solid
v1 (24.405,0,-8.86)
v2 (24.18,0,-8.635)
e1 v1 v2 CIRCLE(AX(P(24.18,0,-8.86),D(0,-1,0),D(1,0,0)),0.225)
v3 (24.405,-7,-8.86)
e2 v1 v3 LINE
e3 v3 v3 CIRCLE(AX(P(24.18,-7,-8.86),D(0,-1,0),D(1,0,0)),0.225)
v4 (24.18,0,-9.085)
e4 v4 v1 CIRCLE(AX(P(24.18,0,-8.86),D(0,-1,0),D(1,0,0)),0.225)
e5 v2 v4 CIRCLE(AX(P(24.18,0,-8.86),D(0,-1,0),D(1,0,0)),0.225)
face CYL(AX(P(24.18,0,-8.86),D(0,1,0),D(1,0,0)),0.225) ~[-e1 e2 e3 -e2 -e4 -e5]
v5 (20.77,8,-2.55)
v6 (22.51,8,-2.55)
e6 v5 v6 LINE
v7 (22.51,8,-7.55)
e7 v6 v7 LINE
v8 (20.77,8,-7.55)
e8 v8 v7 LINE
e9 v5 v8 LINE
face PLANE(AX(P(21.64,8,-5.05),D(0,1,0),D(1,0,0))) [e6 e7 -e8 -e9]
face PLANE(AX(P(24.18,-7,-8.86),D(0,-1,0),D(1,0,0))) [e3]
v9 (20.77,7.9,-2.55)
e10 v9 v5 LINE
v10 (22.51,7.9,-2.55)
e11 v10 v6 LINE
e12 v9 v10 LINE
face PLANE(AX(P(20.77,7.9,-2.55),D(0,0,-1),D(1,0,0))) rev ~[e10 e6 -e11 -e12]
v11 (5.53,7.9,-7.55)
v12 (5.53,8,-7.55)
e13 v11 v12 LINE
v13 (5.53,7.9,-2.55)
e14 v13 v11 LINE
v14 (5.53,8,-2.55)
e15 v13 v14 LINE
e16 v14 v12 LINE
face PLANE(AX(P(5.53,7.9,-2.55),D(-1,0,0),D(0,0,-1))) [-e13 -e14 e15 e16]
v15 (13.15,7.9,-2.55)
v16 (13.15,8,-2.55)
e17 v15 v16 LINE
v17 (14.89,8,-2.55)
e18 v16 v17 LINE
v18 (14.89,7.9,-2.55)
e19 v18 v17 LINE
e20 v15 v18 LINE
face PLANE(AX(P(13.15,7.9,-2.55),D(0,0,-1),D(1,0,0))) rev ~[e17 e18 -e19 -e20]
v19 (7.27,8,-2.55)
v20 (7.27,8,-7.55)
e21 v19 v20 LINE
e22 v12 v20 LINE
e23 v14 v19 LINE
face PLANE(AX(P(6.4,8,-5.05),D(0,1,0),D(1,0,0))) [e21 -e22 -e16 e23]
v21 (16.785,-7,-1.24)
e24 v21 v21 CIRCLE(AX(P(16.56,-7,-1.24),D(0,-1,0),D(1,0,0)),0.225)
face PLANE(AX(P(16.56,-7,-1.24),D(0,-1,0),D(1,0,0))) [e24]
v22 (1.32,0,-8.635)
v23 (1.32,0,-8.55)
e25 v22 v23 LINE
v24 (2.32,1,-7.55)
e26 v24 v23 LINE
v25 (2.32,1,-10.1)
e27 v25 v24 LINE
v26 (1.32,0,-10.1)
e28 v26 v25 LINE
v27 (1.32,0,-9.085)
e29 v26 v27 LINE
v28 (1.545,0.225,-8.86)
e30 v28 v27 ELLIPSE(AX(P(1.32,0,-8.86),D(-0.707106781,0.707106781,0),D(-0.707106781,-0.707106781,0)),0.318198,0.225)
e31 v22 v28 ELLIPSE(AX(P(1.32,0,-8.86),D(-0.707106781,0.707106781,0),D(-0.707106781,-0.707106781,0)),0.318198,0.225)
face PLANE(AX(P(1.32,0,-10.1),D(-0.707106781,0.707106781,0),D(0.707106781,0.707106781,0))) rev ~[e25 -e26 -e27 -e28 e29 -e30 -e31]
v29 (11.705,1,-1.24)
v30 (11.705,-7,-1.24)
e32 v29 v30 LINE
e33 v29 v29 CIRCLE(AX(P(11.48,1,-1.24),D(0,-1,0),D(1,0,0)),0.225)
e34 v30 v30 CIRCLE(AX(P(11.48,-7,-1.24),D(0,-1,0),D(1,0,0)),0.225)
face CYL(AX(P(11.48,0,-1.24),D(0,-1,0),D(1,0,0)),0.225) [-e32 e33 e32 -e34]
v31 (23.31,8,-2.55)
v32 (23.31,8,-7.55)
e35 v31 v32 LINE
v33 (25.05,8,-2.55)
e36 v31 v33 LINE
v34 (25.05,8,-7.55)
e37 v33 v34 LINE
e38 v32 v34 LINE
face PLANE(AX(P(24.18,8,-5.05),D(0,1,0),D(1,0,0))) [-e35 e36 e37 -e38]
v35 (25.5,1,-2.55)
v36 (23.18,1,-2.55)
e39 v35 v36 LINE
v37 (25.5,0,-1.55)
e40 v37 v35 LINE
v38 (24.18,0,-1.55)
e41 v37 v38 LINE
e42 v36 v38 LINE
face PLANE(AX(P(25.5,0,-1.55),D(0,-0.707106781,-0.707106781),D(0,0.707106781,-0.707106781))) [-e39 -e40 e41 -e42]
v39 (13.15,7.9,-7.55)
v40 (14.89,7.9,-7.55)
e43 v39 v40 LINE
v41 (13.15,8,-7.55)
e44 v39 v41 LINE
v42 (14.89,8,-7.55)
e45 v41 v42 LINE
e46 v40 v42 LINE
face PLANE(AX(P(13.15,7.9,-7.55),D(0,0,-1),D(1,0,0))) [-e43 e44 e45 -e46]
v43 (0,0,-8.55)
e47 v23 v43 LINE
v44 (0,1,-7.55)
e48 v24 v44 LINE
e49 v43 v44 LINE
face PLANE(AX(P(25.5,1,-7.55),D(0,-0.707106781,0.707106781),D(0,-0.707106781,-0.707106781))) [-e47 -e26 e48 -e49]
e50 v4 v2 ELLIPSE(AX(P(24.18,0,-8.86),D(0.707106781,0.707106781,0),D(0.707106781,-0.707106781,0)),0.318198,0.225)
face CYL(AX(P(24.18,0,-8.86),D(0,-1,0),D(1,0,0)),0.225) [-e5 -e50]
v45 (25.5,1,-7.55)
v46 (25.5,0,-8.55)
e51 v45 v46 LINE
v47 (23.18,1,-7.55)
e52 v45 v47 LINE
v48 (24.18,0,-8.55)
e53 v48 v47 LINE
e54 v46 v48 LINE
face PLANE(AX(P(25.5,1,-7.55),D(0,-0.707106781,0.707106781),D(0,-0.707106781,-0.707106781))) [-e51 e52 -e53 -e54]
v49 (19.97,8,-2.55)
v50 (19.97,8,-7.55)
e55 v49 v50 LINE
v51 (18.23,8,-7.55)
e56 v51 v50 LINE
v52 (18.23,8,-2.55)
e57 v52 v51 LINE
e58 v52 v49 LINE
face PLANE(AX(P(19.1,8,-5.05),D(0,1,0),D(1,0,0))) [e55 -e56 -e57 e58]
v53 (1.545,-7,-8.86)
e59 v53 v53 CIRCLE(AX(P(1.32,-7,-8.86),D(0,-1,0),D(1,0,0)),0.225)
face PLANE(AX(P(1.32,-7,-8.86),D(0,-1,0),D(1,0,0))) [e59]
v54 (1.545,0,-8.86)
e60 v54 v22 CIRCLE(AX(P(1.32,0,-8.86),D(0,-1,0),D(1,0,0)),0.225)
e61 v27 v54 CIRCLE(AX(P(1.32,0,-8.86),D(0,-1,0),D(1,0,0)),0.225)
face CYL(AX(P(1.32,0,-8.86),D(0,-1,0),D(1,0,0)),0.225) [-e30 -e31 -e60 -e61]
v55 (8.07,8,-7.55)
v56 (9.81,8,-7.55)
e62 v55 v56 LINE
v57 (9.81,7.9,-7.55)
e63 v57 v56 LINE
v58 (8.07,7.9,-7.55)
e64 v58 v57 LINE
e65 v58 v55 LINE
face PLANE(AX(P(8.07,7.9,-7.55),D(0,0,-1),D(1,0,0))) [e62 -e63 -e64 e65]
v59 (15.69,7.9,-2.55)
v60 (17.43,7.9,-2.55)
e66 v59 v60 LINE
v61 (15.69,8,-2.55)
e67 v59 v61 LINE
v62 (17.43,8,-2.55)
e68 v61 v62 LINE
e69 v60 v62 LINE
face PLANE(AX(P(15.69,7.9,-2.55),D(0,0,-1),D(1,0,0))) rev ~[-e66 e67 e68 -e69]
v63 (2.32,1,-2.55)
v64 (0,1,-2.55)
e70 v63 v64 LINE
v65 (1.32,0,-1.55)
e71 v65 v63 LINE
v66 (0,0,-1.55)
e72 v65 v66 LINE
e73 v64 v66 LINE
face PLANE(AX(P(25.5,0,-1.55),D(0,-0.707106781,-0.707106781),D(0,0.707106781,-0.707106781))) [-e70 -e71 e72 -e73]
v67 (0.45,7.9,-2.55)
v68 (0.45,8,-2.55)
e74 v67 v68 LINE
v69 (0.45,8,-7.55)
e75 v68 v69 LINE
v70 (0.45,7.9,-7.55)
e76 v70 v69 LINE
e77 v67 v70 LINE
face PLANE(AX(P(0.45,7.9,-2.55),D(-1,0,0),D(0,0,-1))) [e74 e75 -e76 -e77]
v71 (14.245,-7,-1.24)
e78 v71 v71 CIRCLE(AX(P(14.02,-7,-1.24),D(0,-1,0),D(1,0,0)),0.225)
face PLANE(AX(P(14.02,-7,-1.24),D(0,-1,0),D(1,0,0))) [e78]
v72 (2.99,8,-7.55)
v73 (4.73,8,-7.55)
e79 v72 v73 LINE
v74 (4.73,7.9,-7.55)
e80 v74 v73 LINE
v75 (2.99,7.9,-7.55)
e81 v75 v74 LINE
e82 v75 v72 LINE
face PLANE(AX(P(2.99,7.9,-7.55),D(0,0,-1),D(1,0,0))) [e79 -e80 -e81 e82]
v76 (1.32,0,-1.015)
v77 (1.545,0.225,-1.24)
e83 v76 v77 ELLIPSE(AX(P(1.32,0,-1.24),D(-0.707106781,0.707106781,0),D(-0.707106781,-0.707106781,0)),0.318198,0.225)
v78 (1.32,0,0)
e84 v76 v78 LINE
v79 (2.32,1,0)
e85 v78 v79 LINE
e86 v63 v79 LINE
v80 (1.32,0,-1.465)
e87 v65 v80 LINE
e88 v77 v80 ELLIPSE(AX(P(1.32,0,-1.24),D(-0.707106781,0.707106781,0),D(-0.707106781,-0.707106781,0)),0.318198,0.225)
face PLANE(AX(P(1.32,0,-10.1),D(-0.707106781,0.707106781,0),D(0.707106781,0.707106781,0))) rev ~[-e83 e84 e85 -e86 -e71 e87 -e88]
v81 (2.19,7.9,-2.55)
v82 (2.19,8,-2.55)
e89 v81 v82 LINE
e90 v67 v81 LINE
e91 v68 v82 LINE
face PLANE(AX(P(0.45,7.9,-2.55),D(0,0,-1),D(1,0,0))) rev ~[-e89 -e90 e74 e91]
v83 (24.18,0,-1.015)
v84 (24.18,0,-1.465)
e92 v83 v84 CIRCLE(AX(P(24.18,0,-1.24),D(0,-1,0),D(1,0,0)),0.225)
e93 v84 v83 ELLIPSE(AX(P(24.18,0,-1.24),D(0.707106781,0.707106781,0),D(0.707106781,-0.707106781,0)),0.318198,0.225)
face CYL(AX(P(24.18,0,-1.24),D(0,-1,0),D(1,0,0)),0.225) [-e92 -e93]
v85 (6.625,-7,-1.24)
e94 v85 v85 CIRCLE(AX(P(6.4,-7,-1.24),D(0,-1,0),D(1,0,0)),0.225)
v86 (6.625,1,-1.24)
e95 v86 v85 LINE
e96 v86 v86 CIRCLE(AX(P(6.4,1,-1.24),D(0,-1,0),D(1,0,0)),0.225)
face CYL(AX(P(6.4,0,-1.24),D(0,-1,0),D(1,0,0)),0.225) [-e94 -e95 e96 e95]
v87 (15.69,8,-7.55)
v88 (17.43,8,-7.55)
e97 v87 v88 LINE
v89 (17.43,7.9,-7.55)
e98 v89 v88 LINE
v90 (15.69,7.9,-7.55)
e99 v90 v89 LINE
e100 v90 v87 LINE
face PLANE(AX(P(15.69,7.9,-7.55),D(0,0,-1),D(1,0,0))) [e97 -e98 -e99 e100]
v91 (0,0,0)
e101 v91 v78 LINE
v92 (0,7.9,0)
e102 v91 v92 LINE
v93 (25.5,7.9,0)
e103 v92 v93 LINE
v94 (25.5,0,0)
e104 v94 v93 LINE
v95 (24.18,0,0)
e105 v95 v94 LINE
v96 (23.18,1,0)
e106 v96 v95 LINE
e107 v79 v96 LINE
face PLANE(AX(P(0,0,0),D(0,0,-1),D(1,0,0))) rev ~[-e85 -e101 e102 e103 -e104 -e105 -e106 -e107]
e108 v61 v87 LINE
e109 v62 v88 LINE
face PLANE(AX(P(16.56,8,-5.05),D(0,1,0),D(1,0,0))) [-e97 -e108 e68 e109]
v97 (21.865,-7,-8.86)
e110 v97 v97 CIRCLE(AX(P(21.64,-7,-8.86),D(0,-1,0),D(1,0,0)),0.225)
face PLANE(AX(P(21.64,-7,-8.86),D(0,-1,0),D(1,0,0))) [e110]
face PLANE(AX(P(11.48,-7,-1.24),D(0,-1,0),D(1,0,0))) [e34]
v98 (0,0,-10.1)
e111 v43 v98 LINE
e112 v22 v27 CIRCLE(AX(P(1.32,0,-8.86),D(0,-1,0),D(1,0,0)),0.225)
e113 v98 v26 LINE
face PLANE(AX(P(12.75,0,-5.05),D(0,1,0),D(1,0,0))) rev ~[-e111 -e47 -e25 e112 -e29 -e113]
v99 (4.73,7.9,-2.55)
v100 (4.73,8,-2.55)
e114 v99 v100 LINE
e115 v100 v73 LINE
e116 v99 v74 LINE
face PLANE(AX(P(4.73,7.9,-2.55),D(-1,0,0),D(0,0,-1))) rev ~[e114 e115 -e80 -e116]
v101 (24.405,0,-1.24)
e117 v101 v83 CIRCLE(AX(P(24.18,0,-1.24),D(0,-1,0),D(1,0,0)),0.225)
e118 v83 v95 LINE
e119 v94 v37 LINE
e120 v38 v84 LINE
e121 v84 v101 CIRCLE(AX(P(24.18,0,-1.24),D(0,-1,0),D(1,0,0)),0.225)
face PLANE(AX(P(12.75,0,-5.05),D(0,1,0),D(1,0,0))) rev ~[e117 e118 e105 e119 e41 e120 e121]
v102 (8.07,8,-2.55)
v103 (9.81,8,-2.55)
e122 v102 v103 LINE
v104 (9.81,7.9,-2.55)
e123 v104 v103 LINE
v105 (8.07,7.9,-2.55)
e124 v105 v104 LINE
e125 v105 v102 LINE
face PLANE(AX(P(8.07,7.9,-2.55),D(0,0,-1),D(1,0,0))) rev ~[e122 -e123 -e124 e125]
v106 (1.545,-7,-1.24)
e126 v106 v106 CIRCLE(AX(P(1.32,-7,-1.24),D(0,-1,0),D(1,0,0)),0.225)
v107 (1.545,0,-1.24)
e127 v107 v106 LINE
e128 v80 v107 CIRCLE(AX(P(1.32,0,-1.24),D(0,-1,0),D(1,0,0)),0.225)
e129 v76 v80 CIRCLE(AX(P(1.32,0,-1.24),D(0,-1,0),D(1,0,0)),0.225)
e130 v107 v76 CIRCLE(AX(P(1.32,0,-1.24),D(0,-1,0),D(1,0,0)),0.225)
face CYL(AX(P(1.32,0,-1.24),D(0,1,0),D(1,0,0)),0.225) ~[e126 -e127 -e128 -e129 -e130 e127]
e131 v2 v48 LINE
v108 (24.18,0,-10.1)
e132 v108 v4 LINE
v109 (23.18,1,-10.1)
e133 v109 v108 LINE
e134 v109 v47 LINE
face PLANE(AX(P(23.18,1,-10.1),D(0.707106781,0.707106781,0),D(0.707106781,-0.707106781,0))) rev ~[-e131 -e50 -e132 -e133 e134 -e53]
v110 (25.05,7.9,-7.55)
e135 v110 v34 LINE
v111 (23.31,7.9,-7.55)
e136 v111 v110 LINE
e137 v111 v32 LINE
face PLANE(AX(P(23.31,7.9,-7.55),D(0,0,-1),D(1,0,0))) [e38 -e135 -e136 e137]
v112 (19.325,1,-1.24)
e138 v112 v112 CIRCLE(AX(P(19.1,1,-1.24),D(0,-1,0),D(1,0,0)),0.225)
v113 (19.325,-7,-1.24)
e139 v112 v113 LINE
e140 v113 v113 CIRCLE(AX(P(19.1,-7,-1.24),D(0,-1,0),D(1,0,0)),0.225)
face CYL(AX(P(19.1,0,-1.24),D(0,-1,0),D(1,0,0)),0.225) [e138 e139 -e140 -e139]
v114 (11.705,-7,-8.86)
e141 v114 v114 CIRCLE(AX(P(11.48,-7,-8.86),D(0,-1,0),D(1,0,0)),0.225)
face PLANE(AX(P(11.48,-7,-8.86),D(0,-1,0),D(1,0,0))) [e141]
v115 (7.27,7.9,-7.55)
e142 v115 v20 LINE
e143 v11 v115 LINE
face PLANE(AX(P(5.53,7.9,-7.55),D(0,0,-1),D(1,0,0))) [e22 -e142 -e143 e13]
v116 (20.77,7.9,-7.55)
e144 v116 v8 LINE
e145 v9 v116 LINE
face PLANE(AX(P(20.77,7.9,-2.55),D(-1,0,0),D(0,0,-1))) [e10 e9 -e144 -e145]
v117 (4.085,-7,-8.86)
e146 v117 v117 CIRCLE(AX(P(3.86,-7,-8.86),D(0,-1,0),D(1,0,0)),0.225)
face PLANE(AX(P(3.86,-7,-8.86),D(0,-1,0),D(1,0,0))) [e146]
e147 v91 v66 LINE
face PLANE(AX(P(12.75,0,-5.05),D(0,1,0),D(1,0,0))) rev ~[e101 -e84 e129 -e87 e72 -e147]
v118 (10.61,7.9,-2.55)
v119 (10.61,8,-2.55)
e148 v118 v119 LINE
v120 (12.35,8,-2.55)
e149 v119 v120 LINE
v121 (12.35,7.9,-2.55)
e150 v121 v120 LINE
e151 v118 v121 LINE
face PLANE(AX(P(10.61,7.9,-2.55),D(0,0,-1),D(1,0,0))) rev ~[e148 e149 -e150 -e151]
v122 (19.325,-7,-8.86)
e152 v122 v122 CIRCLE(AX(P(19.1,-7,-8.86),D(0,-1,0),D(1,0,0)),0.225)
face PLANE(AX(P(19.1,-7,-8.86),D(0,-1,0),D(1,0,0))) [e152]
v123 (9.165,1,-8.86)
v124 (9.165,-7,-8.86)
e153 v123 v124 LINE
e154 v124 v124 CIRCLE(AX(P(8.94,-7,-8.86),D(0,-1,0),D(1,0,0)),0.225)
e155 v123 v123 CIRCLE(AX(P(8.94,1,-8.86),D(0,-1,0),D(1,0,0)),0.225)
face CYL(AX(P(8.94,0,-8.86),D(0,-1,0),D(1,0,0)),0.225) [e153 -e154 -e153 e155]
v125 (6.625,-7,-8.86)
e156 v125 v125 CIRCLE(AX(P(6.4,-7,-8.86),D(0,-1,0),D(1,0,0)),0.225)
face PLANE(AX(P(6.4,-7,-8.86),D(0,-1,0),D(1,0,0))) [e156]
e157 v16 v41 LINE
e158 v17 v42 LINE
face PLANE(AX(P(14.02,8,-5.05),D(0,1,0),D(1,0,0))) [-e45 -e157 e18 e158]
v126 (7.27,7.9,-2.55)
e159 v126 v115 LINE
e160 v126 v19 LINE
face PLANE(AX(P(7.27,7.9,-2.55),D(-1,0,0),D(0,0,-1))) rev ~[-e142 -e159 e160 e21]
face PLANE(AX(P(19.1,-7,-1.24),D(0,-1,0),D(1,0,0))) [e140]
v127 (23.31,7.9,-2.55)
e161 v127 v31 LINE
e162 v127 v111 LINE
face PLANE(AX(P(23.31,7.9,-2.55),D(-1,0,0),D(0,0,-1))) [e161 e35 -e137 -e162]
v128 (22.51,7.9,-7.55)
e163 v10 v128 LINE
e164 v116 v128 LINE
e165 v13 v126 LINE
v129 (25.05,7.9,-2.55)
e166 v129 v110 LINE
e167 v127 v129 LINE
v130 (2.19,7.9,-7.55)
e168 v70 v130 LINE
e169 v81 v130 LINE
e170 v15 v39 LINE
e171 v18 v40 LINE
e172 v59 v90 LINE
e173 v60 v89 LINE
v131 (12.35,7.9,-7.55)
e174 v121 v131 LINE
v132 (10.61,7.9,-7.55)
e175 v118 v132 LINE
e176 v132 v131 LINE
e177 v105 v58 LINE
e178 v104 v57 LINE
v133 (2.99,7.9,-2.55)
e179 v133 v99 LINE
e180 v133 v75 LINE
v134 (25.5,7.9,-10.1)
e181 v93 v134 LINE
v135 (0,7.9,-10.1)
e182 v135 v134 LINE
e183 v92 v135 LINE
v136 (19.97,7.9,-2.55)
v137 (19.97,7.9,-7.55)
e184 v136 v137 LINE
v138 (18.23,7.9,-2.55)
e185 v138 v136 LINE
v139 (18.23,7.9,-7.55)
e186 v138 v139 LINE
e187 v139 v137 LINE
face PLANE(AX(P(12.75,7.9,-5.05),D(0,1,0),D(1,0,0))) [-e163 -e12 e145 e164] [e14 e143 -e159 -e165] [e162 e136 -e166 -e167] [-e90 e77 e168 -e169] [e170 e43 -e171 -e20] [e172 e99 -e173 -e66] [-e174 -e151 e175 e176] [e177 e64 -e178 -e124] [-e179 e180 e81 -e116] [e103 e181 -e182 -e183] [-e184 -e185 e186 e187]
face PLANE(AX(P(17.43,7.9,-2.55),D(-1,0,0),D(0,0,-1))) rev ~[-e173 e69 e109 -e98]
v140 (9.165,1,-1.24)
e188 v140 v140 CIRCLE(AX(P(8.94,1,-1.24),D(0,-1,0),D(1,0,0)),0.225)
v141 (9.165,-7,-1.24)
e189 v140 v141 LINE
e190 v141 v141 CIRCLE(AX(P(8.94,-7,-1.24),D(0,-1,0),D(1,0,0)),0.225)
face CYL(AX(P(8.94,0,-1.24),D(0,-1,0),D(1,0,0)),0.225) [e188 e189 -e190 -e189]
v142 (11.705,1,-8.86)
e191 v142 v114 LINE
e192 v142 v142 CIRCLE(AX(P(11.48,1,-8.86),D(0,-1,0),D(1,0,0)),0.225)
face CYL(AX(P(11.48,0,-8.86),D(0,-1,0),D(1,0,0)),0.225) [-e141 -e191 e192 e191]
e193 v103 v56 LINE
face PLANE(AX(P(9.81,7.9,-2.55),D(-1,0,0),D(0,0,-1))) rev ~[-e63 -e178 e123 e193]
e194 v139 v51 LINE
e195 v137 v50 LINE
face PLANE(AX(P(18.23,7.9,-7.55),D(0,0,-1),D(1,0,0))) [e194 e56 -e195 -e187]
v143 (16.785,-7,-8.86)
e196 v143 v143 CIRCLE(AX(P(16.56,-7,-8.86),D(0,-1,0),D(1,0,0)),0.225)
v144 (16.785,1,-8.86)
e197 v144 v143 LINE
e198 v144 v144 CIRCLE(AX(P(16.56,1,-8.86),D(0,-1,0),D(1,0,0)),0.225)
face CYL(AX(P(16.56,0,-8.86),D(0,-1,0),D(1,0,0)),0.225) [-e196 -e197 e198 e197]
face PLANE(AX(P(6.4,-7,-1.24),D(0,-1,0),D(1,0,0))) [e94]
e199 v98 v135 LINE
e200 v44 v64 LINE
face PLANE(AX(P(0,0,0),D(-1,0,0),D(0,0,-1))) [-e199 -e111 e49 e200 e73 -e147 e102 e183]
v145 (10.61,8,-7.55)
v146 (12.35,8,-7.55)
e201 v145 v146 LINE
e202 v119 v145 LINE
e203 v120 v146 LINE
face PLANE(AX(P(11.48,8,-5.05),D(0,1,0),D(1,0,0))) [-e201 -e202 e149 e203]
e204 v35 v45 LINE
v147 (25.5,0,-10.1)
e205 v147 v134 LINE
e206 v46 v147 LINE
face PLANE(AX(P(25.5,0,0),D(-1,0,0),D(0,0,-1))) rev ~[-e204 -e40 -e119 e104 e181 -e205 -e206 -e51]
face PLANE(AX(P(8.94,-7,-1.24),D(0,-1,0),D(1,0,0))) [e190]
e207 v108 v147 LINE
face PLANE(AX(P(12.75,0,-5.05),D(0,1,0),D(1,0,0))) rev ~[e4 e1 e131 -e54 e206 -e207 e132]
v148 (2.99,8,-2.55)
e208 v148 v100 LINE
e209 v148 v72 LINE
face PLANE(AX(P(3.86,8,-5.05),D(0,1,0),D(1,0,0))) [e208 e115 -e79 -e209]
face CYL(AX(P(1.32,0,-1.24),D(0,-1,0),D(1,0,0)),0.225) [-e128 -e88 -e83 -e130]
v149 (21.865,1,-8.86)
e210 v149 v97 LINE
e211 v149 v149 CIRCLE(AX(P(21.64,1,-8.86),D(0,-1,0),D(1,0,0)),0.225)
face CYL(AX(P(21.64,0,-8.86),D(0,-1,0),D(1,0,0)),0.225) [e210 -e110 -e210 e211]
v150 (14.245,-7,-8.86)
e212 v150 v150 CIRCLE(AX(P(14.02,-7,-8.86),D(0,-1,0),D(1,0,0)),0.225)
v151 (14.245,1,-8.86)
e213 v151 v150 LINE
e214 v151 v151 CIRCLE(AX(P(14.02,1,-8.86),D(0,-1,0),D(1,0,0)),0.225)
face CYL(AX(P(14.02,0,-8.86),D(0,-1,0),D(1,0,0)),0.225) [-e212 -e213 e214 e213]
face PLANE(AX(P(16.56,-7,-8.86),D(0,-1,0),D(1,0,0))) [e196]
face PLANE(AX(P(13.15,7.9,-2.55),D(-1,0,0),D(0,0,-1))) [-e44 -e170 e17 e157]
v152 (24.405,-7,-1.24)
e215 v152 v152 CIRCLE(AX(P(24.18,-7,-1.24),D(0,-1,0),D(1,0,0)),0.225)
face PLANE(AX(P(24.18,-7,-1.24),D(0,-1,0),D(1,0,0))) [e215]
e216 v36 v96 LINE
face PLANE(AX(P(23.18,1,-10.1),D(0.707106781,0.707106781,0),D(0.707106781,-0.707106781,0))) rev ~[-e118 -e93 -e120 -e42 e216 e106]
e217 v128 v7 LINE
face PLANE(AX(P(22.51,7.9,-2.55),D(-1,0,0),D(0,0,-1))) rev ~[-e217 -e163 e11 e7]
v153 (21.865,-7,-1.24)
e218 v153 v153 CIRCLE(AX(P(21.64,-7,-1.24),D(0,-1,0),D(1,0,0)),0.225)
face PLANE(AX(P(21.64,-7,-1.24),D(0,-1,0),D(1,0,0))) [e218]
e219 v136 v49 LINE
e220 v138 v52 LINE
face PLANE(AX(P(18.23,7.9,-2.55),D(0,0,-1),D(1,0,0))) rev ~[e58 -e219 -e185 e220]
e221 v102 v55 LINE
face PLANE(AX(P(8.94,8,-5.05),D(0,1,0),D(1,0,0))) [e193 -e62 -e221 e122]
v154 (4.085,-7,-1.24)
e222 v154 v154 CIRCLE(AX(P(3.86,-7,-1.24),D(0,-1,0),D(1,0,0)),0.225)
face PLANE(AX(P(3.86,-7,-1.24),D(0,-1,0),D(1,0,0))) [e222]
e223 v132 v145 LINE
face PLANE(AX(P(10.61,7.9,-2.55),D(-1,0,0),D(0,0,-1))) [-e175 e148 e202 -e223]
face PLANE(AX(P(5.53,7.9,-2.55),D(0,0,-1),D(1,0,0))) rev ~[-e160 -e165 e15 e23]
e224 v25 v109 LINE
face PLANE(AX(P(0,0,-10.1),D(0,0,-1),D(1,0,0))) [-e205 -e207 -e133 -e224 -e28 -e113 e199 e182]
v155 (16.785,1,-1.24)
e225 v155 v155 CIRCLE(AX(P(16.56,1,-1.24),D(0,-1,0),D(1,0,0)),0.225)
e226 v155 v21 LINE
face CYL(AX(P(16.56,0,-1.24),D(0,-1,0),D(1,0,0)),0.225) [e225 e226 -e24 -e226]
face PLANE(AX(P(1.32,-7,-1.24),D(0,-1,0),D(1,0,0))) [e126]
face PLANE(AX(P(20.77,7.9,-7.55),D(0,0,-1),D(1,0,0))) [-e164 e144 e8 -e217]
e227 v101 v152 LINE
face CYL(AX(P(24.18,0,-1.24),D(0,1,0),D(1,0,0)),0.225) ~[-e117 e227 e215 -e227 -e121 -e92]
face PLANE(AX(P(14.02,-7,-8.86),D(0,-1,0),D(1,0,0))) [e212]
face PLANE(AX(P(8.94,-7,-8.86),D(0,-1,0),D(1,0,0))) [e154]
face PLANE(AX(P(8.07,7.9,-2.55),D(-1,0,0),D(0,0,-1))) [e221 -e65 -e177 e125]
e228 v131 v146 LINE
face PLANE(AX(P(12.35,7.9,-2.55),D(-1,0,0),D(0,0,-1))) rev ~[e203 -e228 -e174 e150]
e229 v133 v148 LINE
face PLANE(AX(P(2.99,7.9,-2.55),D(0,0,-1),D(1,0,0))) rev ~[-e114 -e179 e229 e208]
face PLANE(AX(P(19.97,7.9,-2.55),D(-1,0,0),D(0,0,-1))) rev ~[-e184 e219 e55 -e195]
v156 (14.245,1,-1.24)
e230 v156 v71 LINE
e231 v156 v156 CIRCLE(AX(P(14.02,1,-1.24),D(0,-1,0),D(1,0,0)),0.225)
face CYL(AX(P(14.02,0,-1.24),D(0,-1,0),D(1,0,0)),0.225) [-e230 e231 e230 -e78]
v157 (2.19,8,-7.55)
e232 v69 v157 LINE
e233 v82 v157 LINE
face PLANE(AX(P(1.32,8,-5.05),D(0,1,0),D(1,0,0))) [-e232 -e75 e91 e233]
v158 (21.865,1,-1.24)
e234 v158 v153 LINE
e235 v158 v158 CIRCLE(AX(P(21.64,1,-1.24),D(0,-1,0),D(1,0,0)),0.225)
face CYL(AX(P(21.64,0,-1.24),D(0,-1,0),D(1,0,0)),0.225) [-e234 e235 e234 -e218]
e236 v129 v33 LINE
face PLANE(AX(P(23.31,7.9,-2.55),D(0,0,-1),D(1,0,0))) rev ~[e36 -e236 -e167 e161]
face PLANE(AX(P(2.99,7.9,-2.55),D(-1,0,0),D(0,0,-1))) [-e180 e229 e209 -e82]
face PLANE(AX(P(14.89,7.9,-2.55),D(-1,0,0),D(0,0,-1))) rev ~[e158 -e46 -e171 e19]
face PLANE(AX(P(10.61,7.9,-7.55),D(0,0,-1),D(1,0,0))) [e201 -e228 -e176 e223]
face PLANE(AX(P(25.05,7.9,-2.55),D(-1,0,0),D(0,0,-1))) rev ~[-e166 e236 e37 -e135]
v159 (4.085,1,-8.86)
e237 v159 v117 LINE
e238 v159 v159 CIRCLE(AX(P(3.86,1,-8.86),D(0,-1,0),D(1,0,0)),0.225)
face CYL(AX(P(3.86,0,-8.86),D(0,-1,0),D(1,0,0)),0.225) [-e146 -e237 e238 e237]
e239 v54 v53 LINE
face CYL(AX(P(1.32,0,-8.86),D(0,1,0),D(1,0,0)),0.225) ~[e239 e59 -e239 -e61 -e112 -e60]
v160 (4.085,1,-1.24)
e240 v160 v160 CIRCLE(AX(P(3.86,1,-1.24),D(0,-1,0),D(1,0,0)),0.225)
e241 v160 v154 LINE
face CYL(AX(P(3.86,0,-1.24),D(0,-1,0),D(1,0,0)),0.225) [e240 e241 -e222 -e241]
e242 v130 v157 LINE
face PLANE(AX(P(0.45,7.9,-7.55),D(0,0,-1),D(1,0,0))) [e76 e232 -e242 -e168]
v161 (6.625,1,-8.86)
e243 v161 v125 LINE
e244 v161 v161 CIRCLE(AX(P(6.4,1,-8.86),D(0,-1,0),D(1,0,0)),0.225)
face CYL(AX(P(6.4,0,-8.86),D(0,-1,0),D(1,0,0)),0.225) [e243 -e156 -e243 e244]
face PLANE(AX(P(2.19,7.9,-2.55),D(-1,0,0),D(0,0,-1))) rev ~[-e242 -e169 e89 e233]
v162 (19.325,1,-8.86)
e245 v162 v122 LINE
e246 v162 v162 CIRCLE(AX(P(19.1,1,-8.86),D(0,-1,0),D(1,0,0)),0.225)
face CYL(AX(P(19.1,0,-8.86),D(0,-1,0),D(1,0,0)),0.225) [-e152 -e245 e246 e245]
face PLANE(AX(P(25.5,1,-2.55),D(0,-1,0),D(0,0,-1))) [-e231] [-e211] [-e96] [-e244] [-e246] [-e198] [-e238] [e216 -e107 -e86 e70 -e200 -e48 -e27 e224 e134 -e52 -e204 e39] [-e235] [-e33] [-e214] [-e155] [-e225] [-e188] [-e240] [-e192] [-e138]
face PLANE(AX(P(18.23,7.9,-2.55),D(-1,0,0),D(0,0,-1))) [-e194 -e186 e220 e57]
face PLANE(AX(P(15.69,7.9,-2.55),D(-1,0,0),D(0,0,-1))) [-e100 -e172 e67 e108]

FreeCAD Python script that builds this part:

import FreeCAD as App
import Part
import Sketcher
from FreeCAD import Vector
Q = App.Units.Quantity


def add_polygon(sketch, points):
    """Adds a closed chain of lines whose ends are joined by coincident constraints."""
    first, n = sketch.GeometryCount, len(points)
    for a, b in zip(points, points[1:] + points[:1]):
        sketch.addGeometry(Part.LineSegment(App.Vector(*a, 0), App.Vector(*b, 0)), False)
    for i in range(n):
        sketch.addConstraint(Sketcher.Constraint("Coincident", first + i, 2, first + (i + 1) % n, 1))

doc = App.newDocument("Part")
body = doc.addObject("PartDesign::Body", "Body")
body.AllowCompound = True

# Sketch on XZ plane
sketch1 = body.newObject("Sketcher::SketchObject", "Sketch")
sketch1.AttachmentSupport = (doc.getObject("XZ_Plane"), [""])
sketch1.MapMode = "FlatFace"
add_polygon(sketch1, [(0, -10), (0, 0), (26, 0), (26, -10)])  # lines 0-3
sketch1.addConstraint([
    Sketcher.Constraint("Vertical", 0),
    Sketcher.Constraint("Horizontal", 1),
    Sketcher.Constraint("Vertical", 2),
    Sketcher.Constraint("Horizontal", 3),
    Sketcher.Constraint("Coincident", 0, 2, -1, 1),
    Sketcher.Constraint("DistanceX", 1, 1, 1, 2, Q("25.5 mm")),
    Sketcher.Constraint("DistanceY", 0, 1, 0, 2, Q("10.1 mm")),
])
pad1 = body.newObject("PartDesign::Pad", "Pad")
pad1.Profile = sketch1
pad1.Length = 7.9
pad1.Reversed = True

# Sketch on YZ plane
sketch2 = body.newObject("Sketcher::SketchObject", "Sketch001")
sketch2.AttachmentSupport = (doc.getObject("YZ_Plane"), [""])
sketch2.MapMode = "FlatFace"
sketch2.AttachmentOffset = App.Placement(Vector(0, 0, 25.5), App.Rotation())
add_polygon(sketch2, [(1, -2.5), (0, -1.6), (0, -8.6), (1, -7.5)])  # lines 0-3
sketch2.addConstraint([
    Sketcher.Constraint("Vertical", 1),
    Sketcher.Constraint("Vertical", 3),
    Sketcher.Constraint("PointOnObject", 0, 2, -2),
    Sketcher.Constraint("Perpendicular", 0, 2),
    Sketcher.Constraint("Equal", 0, 2),
    Sketcher.Constraint("DistanceY", 1, 2, 1, 1, Q("7 mm")),
    Sketcher.Constraint("DistanceY", 3, 1, 3, 2, Q("5 mm")),
    Sketcher.Constraint("DistanceY", 0, 2, -1, 1, Q("1.55 mm")),
])
pocket1 = body.newObject("PartDesign::Pocket", "Pocket")
pocket1.Profile = sketch2
pocket1.Type = "ThroughAll"

# Sketch on XZ plane
sketch3 = body.newObject("Sketcher::SketchObject", "Sketch002")
sketch3.AttachmentSupport = (doc.getObject("XZ_Plane"), [""])
sketch3.MapMode = "FlatFace"
sketch3.AttachmentOffset = App.Placement(Vector(0, 0, -7.9), App.Rotation())
add_polygon(sketch3, [(0.5, -7.5), (0.5, -2.5), (2.2, -2.5), (2.2, -7.5)])  # lines 0-3
add_polygon(sketch3, [(3, -7.5), (3, -2.5), (4.7, -2.5), (4.7, -7.5)])  # lines 4-7
add_polygon(sketch3, [(5.5, -7.5), (5.5, -2.5), (7.3, -2.5), (7.3, -7.5)])  # lines 8-11
add_polygon(sketch3, [(8.1, -7.5), (8.1, -2.5), (9.8, -2.5), (9.8, -7.5)])  # lines 12-15
add_polygon(sketch3, [(10.6, -7.5), (10.6, -2.5), (12.3, -2.5), (12.3, -7.5)])  # lines 16-19
add_polygon(sketch3, [(13.2, -7.5), (13.2, -2.5), (14.9, -2.5), (14.9, -7.5)])  # lines 20-23
add_polygon(sketch3, [(15.7, -7.5), (15.7, -2.5), (17.4, -2.5), (17.4, -7.5)])  # lines 24-27
add_polygon(sketch3, [(18.2, -7.5), (18.2, -2.5), (20, -2.5), (20, -7.5)])  # lines 28-31
add_polygon(sketch3, [(20.8, -7.5), (20.8, -2.5), (22.5, -2.5), (22.5, -7.5)])  # lines 32-35
add_polygon(sketch3, [(23.3, -7.5), (23.3, -2.5), (25.1, -2.5), (25.1, -7.5)])  # lines 36-39
sketch3.addConstraint([
    Sketcher.Constraint("Vertical", 0),
    Sketcher.Constraint("Horizontal", 1),
    Sketcher.Constraint("Vertical", 2),
    Sketcher.Constraint("Horizontal", 3),
    Sketcher.Constraint("Vertical", 4),
    Sketcher.Constraint("Horizontal", 5),
    Sketcher.Constraint("Vertical", 6),
    Sketcher.Constraint("Horizontal", 7),
    Sketcher.Constraint("Vertical", 8),
    Sketcher.Constraint("Horizontal", 9),
    Sketcher.Constraint("Vertical", 10),
    Sketcher.Constraint("Horizontal", 11),
    Sketcher.Constraint("Vertical", 12),
    Sketcher.Constraint("Horizontal", 13),
    Sketcher.Constraint("Vertical", 14),
    Sketcher.Constraint("Horizontal", 15),
    Sketcher.Constraint("Vertical", 16),
    Sketcher.Constraint("Horizontal", 17),
    Sketcher.Constraint("Vertical", 18),
    Sketcher.Constraint("Horizontal", 19),
    Sketcher.Constraint("Vertical", 20),
    Sketcher.Constraint("Horizontal", 21),
    Sketcher.Constraint("Vertical", 22),
    Sketcher.Constraint("Horizontal", 23),
    Sketcher.Constraint("Vertical", 24),
    Sketcher.Constraint("Horizontal", 25),
    Sketcher.Constraint("Vertical", 26),
    Sketcher.Constraint("Horizontal", 27),
    Sketcher.Constraint("Vertical", 28),
    Sketcher.Constraint("Horizontal", 29),
    Sketcher.Constraint("Vertical", 30),
    Sketcher.Constraint("Horizontal", 31),
    Sketcher.Constraint("Vertical", 32),
    Sketcher.Constraint("Horizontal", 33),
    Sketcher.Constraint("Vertical", 34),
    Sketcher.Constraint("Horizontal", 35),
    Sketcher.Constraint("Vertical", 36),
    Sketcher.Constraint("Horizontal", 37),
    Sketcher.Constraint("Vertical", 38),
    Sketcher.Constraint("Horizontal", 39),
    Sketcher.Constraint("Horizontal", 1, 2, 4, 2),
    Sketcher.Constraint("Horizontal", 3, 2, 6, 2),
    Sketcher.Constraint("Horizontal", 5, 2, 8, 2),
    Sketcher.Constraint("Horizontal", 7, 2, 10, 2),
    Sketcher.Constraint("Horizontal", 9, 2, 12, 2),
    Sketcher.Constraint("Horizontal", 11, 2, 14, 2),
    Sketcher.Constraint("Horizontal", 13, 2, 16, 2),
    Sketcher.Constraint("Horizontal", 15, 2, 18, 2),
    Sketcher.Constraint("Horizontal", 17, 2, 20, 2),
    Sketcher.Constraint("Horizontal", 19, 2, 22, 2),
    Sketcher.Constraint("Horizontal", 21, 2, 24, 2),
    Sketcher.Constraint("Horizontal", 23, 2, 26, 2),
    Sketcher.Constraint("Horizontal", 25, 2, 28, 2),
    Sketcher.Constraint("Horizontal", 27, 2, 30, 2),
    Sketcher.Constraint("Horizontal", 29, 2, 32, 2),
    Sketcher.Constraint("Horizontal", 31, 2, 34, 2),
    Sketcher.Constraint("Horizontal", 33, 2, 36, 2),
    Sketcher.Constraint("Horizontal", 35, 2, 38, 2),
    Sketcher.Constraint("Equal", 3, 5),
    Sketcher.Constraint("Equal", 7, 9),
    Sketcher.Constraint("Equal", 11, 13),
    Sketcher.Constraint("Equal", 15, 17),
    Sketcher.Constraint("Equal", 19, 21),
    Sketcher.Constraint("Equal", 23, 25),
    Sketcher.Constraint("Equal", 27, 29),
    Sketcher.Constraint("Equal", 31, 33),
    Sketcher.Constraint("Equal", 35, 37),
    Sketcher.Constraint("DistanceY", 0, 1, 0, 2, Q("5 mm")),
    Sketcher.Constraint("DistanceX", 1, 1, 1, 2, Q("1.74 mm")),
    Sketcher.Constraint("DistanceX", 1, 2, 4, 2, Q("0.8 mm")),
    Sketcher.Constraint("DistanceX", 5, 2, 8, 2, Q("0.8 mm")),
    Sketcher.Constraint("DistanceX", 9, 2, 12, 2, Q("0.8 mm")),
    Sketcher.Constraint("DistanceX", 13, 2, 16, 2, Q("0.8 mm")),
    Sketcher.Constraint("DistanceX", 17, 2, 20, 2, Q("0.8 mm")),
    Sketcher.Constraint("DistanceX", 21, 2, 24, 2, Q("0.8 mm")),
    Sketcher.Constraint("DistanceX", 25, 2, 28, 2, Q("0.8 mm")),
    Sketcher.Constraint("DistanceX", 29, 2, 32, 2, Q("0.8 mm")),
    Sketcher.Constraint("DistanceX", 33, 2, 36, 2, Q("0.8 mm")),
    Sketcher.Constraint("DistanceX", -1, 1, 0, 2, Q("0.45 mm")),
    Sketcher.Constraint("DistanceY", 0, 2, -1, 1, Q("2.55 mm")),
])
pad2 = body.newObject("PartDesign::Pad", "Pad001")
pad2.Profile = sketch3
pad2.Length = 0.1
pad2.Reversed = True

# Sketch on XY plane
sketch4 = body.newObject("Sketcher::SketchObject", "Sketch003")
sketch4.AttachmentSupport = (doc.getObject("XY_Plane"), [""])
sketch4.MapMode = "FlatFace"
sketch4.AttachmentOffset = App.Placement(Vector(0, 0, -10.1), App.Rotation())
add_polygon(sketch4, [(23.2, 1), (24.2, 0), (1.3, 0), (2.3, 1)])  # lines 0-3
sketch4.addConstraint([
    Sketcher.Constraint("Horizontal", 1),
    Sketcher.Constraint("Horizontal", 3),
    Sketcher.Constraint("PointOnObject", 0, 2, -1),
    Sketcher.Constraint("Perpendicular", 0, 2),
    Sketcher.Constraint("Equal", 0, 2),
    Sketcher.Constraint("DistanceY", -1, 1, 2, 2, Q("1 mm")),
    Sketcher.Constraint("DistanceX", 1, 2, 1, 1, Q("22.86 mm")),
    Sketcher.Constraint("DistanceX", -1, 1, 0, 2, Q("24.18 mm")),
])
pocket2 = body.newObject("PartDesign::Pocket", "Pocket001")
pocket2.Profile = sketch4
pocket2.Type = "ThroughAll"
pocket2.Reversed = True

# Sketch on XZ plane
sketch5 = body.newObject("Sketcher::SketchObject", "Sketch004")
sketch5.AttachmentSupport = (doc.getObject("XZ_Plane"), [""])
sketch5.MapMode = "FlatFace"
sketch5.addGeometry([
    Part.Circle(Vector(1.32, -8.86, 0), Vector(0, 0, 1), 0.23),  # 0
    Part.Circle(Vector(3.86, -8.86, 0), Vector(0, 0, 1), 0.23),  # 1
    Part.Circle(Vector(6.4, -8.86, 0), Vector(0, 0, 1), 0.23),  # 2
    Part.Circle(Vector(8.94, -8.86, 0), Vector(0, 0, 1), 0.23),  # 3
    Part.Circle(Vector(11.48, -8.86, 0), Vector(0, 0, 1), 0.23),  # 4
    Part.Circle(Vector(14.02, -8.86, 0), Vector(0, 0, 1), 0.23),  # 5
    Part.Circle(Vector(16.56, -8.86, 0), Vector(0, 0, 1), 0.23),  # 6
    Part.Circle(Vector(19.1, -8.86, 0), Vector(0, 0, 1), 0.23),  # 7
    Part.Circle(Vector(21.64, -8.86, 0), Vector(0, 0, 1), 0.23),  # 8
    Part.Circle(Vector(24.18, -8.86, 0), Vector(0, 0, 1), 0.23),  # 9
    Part.Circle(Vector(3.86, -1.24, 0), Vector(0, 0, 1), 0.23),  # 10
    Part.Circle(Vector(6.4, -1.24, 0), Vector(0, 0, 1), 0.23),  # 11
    Part.Circle(Vector(8.94, -1.24, 0), Vector(0, 0, 1), 0.23),  # 12
    Part.Circle(Vector(11.48, -1.24, 0), Vector(0, 0, 1), 0.23),  # 13
    Part.Circle(Vector(14.02, -1.24, 0), Vector(0, 0, 1), 0.23),  # 14
    Part.Circle(Vector(16.56, -1.24, 0), Vector(0, 0, 1), 0.23),  # 15
    Part.Circle(Vector(19.1, -1.24, 0), Vector(0, 0, 1), 0.23),  # 16
    Part.Circle(Vector(21.64, -1.24, 0), Vector(0, 0, 1), 0.23),  # 17
    Part.Circle(Vector(24.18, -1.24, 0), Vector(0, 0, 1), 0.23),  # 18
    Part.Circle(Vector(1.32, -1.24, 0), Vector(0, 0, 1), 0.23),  # 19
], False)
sketch5.addConstraint([
    Sketcher.Constraint("Equal", 0, 1),
    Sketcher.Constraint("Equal", 1, 2),
    Sketcher.Constraint("Equal", 2, 3),
    Sketcher.Constraint("Equal", 3, 4),
    Sketcher.Constraint("Equal", 4, 5),
    Sketcher.Constraint("Equal", 5, 6),
    Sketcher.Constraint("Equal", 6, 7),
    Sketcher.Constraint("Equal", 7, 8),
    Sketcher.Constraint("Equal", 8, 9),
    Sketcher.Constraint("Equal", 9, 10),
    Sketcher.Constraint("Equal", 10, 11),
    Sketcher.Constraint("Equal", 11, 12),
    Sketcher.Constraint("Equal", 12, 13),
    Sketcher.Constraint("Equal", 13, 14),
    Sketcher.Constraint("Equal", 14, 15),
    Sketcher.Constraint("Equal", 15, 16),
    Sketcher.Constraint("Equal", 16, 17),
    Sketcher.Constraint("Equal", 17, 18),
    Sketcher.Constraint("Equal", 18, 19),
    Sketcher.Constraint("Horizontal", 0, 3, 1, 3),
    Sketcher.Constraint("Horizontal", 1, 3, 2, 3),
    Sketcher.Constraint("Horizontal", 2, 3, 3, 3),
    Sketcher.Constraint("Horizontal", 3, 3, 4, 3),
    Sketcher.Constraint("Horizontal", 4, 3, 5, 3),
    Sketcher.Constraint("Horizontal", 5, 3, 6, 3),
    Sketcher.Constraint("Horizontal", 6, 3, 7, 3),
    Sketcher.Constraint("Horizontal", 7, 3, 8, 3),
    Sketcher.Constraint("Horizontal", 8, 3, 9, 3),
    Sketcher.Constraint("Horizontal", 10, 3, 11, 3),
    Sketcher.Constraint("Horizontal", 11, 3, 12, 3),
    Sketcher.Constraint("Horizontal", 12, 3, 13, 3),
    Sketcher.Constraint("Horizontal", 13, 3, 14, 3),
    Sketcher.Constraint("Horizontal", 14, 3, 15, 3),
    Sketcher.Constraint("Horizontal", 15, 3, 16, 3),
    Sketcher.Constraint("Horizontal", 16, 3, 17, 3),
    Sketcher.Constraint("Horizontal", 17, 3, 18, 3),
    Sketcher.Constraint("Horizontal", 18, 3, 19, 3),
    Sketcher.Constraint("Vertical", 1, 3, 10, 3),
    Sketcher.Constraint("Vertical", 2, 3, 11, 3),
    Sketcher.Constraint("Vertical", 3, 3, 12, 3),
    Sketcher.Constraint("Vertical", 4, 3, 13, 3),
    Sketcher.Constraint("Vertical", 5, 3, 14, 3),
    Sketcher.Constraint("Vertical", 6, 3, 15, 3),
    Sketcher.Constraint("Vertical", 7, 3, 16, 3),
    Sketcher.Constraint("Vertical", 8, 3, 17, 3),
    Sketcher.Constraint("Vertical", 9, 3, 18, 3),
    Sketcher.Constraint("Vertical", 0, 3, 19, 3),
    Sketcher.Constraint("Diameter", 0, Q("0.45 mm")),
    Sketcher.Constraint("DistanceX", -1, 1, 2, 3, Q("6.4 mm")),
    Sketcher.Constraint("DistanceX", -1, 1, 7, 3, Q("19.1 mm")),
    Sketcher.Constraint("DistanceX", 0, 3, 5, 3, Q("12.7 mm")),
    Sketcher.Constraint("DistanceX", 1, 3, 6, 3, Q("12.7 mm")),
    Sketcher.Constraint("DistanceX", 3, 3, 8, 3, Q("12.7 mm")),
    Sketcher.Constraint("DistanceX", 4, 3, 9, 3, Q("12.7 mm")),
    Sketcher.Constraint("DistanceX", -1, 1, 0, 3, Q("1.32 mm")),
    Sketcher.Constraint("DistanceY", 0, 3, -1, 1, Q("8.86 mm")),
    Sketcher.Constraint("DistanceX", -1, 1, 1, 3, Q("3.86 mm")),
    Sketcher.Constraint("DistanceX", -1, 1, 3, 3, Q("8.94 mm")),
    Sketcher.Constraint("DistanceX", -1, 1, 4, 3, Q("11.48 mm")),
    Sketcher.Constraint("DistanceY", 10, 3, -1, 1, Q("1.24 mm")),
])
pad3 = body.newObject("PartDesign::Pad", "Pad002")
pad3.Profile = sketch5
pad3.Length = 7

# Sketch on XZ plane
sketch6 = body.newObject("Sketcher::SketchObject", "Sketch005")
sketch6.AttachmentSupport = (doc.getObject("XZ_Plane"), [""])
sketch6.MapMode = "FlatFace"
sketch6.addGeometry(Part.Circle(Vector(1.32, -8.86, 0), Vector(0, 0, 1), 0.23), False)
sketch6.addConstraint([
    Sketcher.Constraint("Diameter", 0, Q("0.45 mm")),
    Sketcher.Constraint("DistanceX", -1, 1, 0, 3, Q("1.32 mm")),
    Sketcher.Constraint("DistanceY", 0, 3, -1, 1, Q("8.86 mm")),
])
pad4 = body.newObject("PartDesign::Pad", "Pad003")
pad4.Profile = sketch6
pad4.Type = "UpToFirst"
pad4.Reversed = True

# Sketch on XZ plane
sketch7 = body.newObject("Sketcher::SketchObject", "Sketch006")
sketch7.AttachmentSupport = (doc.getObject("XZ_Plane"), [""])
sketch7.MapMode = "FlatFace"
sketch7.addGeometry(Part.Circle(Vector(3.86, -8.86, 0), Vector(0, 0, 1), 0.23), False)
sketch7.addConstraint([
    Sketcher.Constraint("Diameter", 0, Q("0.45 mm")),
    Sketcher.Constraint("DistanceX", -1, 1, 0, 3, Q("3.86 mm")),
    Sketcher.Constraint("DistanceY", 0, 3, -1, 1, Q("8.86 mm")),
])
pad5 = body.newObject("PartDesign::Pad", "Pad004")
pad5.Profile = sketch7
pad5.Type = "UpToFirst"
pad5.Reversed = True

# Sketch on XZ plane
sketch8 = body.newObject("Sketcher::SketchObject", "Sketch007")
sketch8.AttachmentSupport = (doc.getObject("XZ_Plane"), [""])
sketch8.MapMode = "FlatFace"
sketch8.addGeometry(Part.Circle(Vector(6.4, -8.86, 0), Vector(0, 0, 1), 0.23), False)
sketch8.addConstraint([
    Sketcher.Constraint("Diameter", 0, Q("0.45 mm")),
    Sketcher.Constraint("DistanceX", -1, 1, 0, 3, Q("6.4 mm")),
    Sketcher.Constraint("DistanceY", 0, 3, -1, 1, Q("8.86 mm")),
])
pad6 = body.newObject("PartDesign::Pad", "Pad005")
pad6.Profile = sketch8
pad6.Type = "UpToFirst"
pad6.Reversed = True

# Sketch on XZ plane
sketch9 = body.newObject("Sketcher::SketchObject", "Sketch008")
sketch9.AttachmentSupport = (doc.getObject("XZ_Plane"), [""])
sketch9.MapMode = "FlatFace"
sketch9.addGeometry(Part.Circle(Vector(8.94, -8.86, 0), Vector(0, 0, 1), 0.23), False)
sketch9.addConstraint([
    Sketcher.Constraint("Diameter", 0, Q("0.45 mm")),
    Sketcher.Constraint("DistanceX", -1, 1, 0, 3, Q("8.94 mm")),
    Sketcher.Constraint("DistanceY", 0, 3, -1, 1, Q("8.86 mm")),
])
pad7 = body.newObject("PartDesign::Pad", "Pad006")
pad7.Profile = sketch9
pad7.Type = "UpToFirst"
pad7.Reversed = True

# Sketch on XZ plane
sketch10 = body.newObject("Sketcher::SketchObject", "Sketch009")
sketch10.AttachmentSupport = (doc.getObject("XZ_Plane"), [""])
sketch10.MapMode = "FlatFace"
sketch10.addGeometry(Part.Circle(Vector(11.48, -8.86, 0), Vector(0, 0, 1), 0.23), False)
sketch10.addConstraint([
    Sketcher.Constraint("Diameter", 0, Q("0.45 mm")),
    Sketcher.Constraint("DistanceX", -1, 1, 0, 3, Q("11.48 mm")),
    Sketcher.Constraint("DistanceY", 0, 3, -1, 1, Q("8.86 mm")),
])
pad8 = body.newObject("PartDesign::Pad", "Pad007")
pad8.Profile = sketch10
pad8.Type = "UpToFirst"
pad8.Reversed = True

# Sketch on XZ plane
sketch11 = body.newObject("Sketcher::SketchObject", "Sketch010")
sketch11.AttachmentSupport = (doc.getObject("XZ_Plane"), [""])
sketch11.MapMode = "FlatFace"
sketch11.addGeometry(Part.Circle(Vector(14.02, -8.86, 0), Vector(0, 0, 1), 0.23), False)
sketch11.addConstraint([
    Sketcher.Constraint("Diameter", 0, Q("0.45 mm")),
    Sketcher.Constraint("DistanceX", -1, 1, 0, 3, Q("14.02 mm")),
    Sketcher.Constraint("DistanceY", 0, 3, -1, 1, Q("8.86 mm")),
])
pad9 = body.newObject("PartDesign::Pad", "Pad008")
pad9.Profile = sketch11
pad9.Type = "UpToFirst"
pad9.Reversed = True

# Sketch on XZ plane
sketch12 = body.newObject("Sketcher::SketchObject", "Sketch011")
sketch12.AttachmentSupport = (doc.getObject("XZ_Plane"), [""])
sketch12.MapMode = "FlatFace"
sketch12.addGeometry(Part.Circle(Vector(16.56, -8.86, 0), Vector(0, 0, 1), 0.23), False)
sketch12.addConstraint([
    Sketcher.Constraint("Diameter", 0, Q("0.45 mm")),
    Sketcher.Constraint("DistanceX", -1, 1, 0, 3, Q("16.56 mm")),
    Sketcher.Constraint("DistanceY", 0, 3, -1, 1, Q("8.86 mm")),
])
pad10 = body.newObject("PartDesign::Pad", "Pad009")
pad10.Profile = sketch12
pad10.Type = "UpToFirst"
pad10.Reversed = True

# Sketch on XZ plane
sketch13 = body.newObject("Sketcher::SketchObject", "Sketch012")
sketch13.AttachmentSupport = (doc.getObject("XZ_Plane"), [""])
sketch13.MapMode = "FlatFace"
sketch13.addGeometry(Part.Circle(Vector(19.1, -8.86, 0), Vector(0, 0, 1), 0.23), False)
sketch13.addConstraint([
    Sketcher.Constraint("Diameter", 0, Q("0.45 mm")),
    Sketcher.Constraint("DistanceX", -1, 1, 0, 3, Q("19.1 mm")),
    Sketcher.Constraint("DistanceY", 0, 3, -1, 1, Q("8.86 mm")),
])
pad11 = body.newObject("PartDesign::Pad", "Pad010")
pad11.Profile = sketch13
pad11.Type = "UpToFirst"
pad11.Reversed = True

# Sketch on XZ plane
sketch14 = body.newObject("Sketcher::SketchObject", "Sketch013")
sketch14.AttachmentSupport = (doc.getObject("XZ_Plane"), [""])
sketch14.MapMode = "FlatFace"
sketch14.addGeometry(Part.Circle(Vector(21.64, -8.86, 0), Vector(0, 0, 1), 0.23), False)
sketch14.addConstraint([
    Sketcher.Constraint("Diameter", 0, Q("0.45 mm")),
    Sketcher.Constraint("DistanceX", -1, 1, 0, 3, Q("21.64 mm")),
    Sketcher.Constraint("DistanceY", 0, 3, -1, 1, Q("8.86 mm")),
])
pad12 = body.newObject("PartDesign::Pad", "Pad011")
pad12.Profile = sketch14
pad12.Type = "UpToFirst"
pad12.Reversed = True

# Sketch on XZ plane
sketch15 = body.newObject("Sketcher::SketchObject", "Sketch014")
sketch15.AttachmentSupport = (doc.getObject("XZ_Plane"), [""])
sketch15.MapMode = "FlatFace"
sketch15.addGeometry(Part.Circle(Vector(24.18, -8.86, 0), Vector(0, 0, 1), 0.23), False)
sketch15.addConstraint([
    Sketcher.Constraint("Diameter", 0, Q("0.45 mm")),
    Sketcher.Constraint("DistanceX", -1, 1, 0, 3, Q("24.18 mm")),
    Sketcher.Constraint("DistanceY", 0, 3, -1, 1, Q("8.86 mm")),
])
pad13 = body.newObject("PartDesign::Pad", "Pad012")
pad13.Profile = sketch15
pad13.Type = "UpToFirst"
pad13.Reversed = True

# Sketch on XZ plane
sketch16 = body.newObject("Sketcher::SketchObject", "Sketch015")
sketch16.AttachmentSupport = (doc.getObject("XZ_Plane"), [""])
sketch16.MapMode = "FlatFace"
sketch16.addGeometry(Part.Circle(Vector(3.86, -1.24, 0), Vector(0, 0, 1), 0.23), False)
sketch16.addConstraint([
    Sketcher.Constraint("Diameter", 0, Q("0.45 mm")),
    Sketcher.Constraint("DistanceX", -1, 1, 0, 3, Q("3.86 mm")),
    Sketcher.Constraint("DistanceY", 0, 3, -1, 1, Q("1.24 mm")),
])
pad14 = body.newObject("PartDesign::Pad", "Pad013")
pad14.Profile = sketch16
pad14.Type = "UpToFirst"
pad14.Reversed = True

# Sketch on XZ plane
sketch17 = body.newObject("Sketcher::SketchObject", "Sketch016")
sketch17.AttachmentSupport = (doc.getObject("XZ_Plane"), [""])
sketch17.MapMode = "FlatFace"
sketch17.addGeometry(Part.Circle(Vector(6.4, -1.24, 0), Vector(0, 0, 1), 0.23), False)
sketch17.addConstraint([
    Sketcher.Constraint("Diameter", 0, Q("0.45 mm")),
    Sketcher.Constraint("DistanceX", -1, 1, 0, 3, Q("6.4 mm")),
    Sketcher.Constraint("DistanceY", 0, 3, -1, 1, Q("1.24 mm")),
])
pad15 = body.newObject("PartDesign::Pad", "Pad014")
pad15.Profile = sketch17
pad15.Type = "UpToFirst"
pad15.Reversed = True

# Sketch on XZ plane
sketch18 = body.newObject("Sketcher::SketchObject", "Sketch017")
sketch18.AttachmentSupport = (doc.getObject("XZ_Plane"), [""])
sketch18.MapMode = "FlatFace"
sketch18.addGeometry(Part.Circle(Vector(8.94, -1.24, 0), Vector(0, 0, 1), 0.23), False)
sketch18.addConstraint([
    Sketcher.Constraint("Diameter", 0, Q("0.45 mm")),
    Sketcher.Constraint("DistanceX", -1, 1, 0, 3, Q("8.94 mm")),
    Sketcher.Constraint("DistanceY", 0, 3, -1, 1, Q("1.24 mm")),
])
pad16 = body.newObject("PartDesign::Pad", "Pad015")
pad16.Profile = sketch18
pad16.Type = "UpToFirst"
pad16.Reversed = True

# Sketch on XZ plane
sketch19 = body.newObject("Sketcher::SketchObject", "Sketch018")
sketch19.AttachmentSupport = (doc.getObject("XZ_Plane"), [""])
sketch19.MapMode = "FlatFace"
sketch19.addGeometry(Part.Circle(Vector(11.48, -1.24, 0), Vector(0, 0, 1), 0.23), False)
sketch19.addConstraint([
    Sketcher.Constraint("Diameter", 0, Q("0.45 mm")),
    Sketcher.Constraint("DistanceX", -1, 1, 0, 3, Q("11.48 mm")),
    Sketcher.Constraint("DistanceY", 0, 3, -1, 1, Q("1.24 mm")),
])
pad17 = body.newObject("PartDesign::Pad", "Pad016")
pad17.Profile = sketch19
pad17.Type = "UpToFirst"
pad17.Reversed = True

# Sketch on XZ plane
sketch20 = body.newObject("Sketcher::SketchObject", "Sketch019")
sketch20.AttachmentSupport = (doc.getObject("XZ_Plane"), [""])
sketch20.MapMode = "FlatFace"
sketch20.addGeometry(Part.Circle(Vector(14.02, -1.24, 0), Vector(0, 0, 1), 0.23), False)
sketch20.addConstraint([
    Sketcher.Constraint("Diameter", 0, Q("0.45 mm")),
    Sketcher.Constraint("DistanceX", -1, 1, 0, 3, Q("14.02 mm")),
    Sketcher.Constraint("DistanceY", 0, 3, -1, 1, Q("1.24 mm")),
])
pad18 = body.newObject("PartDesign::Pad", "Pad017")
pad18.Profile = sketch20
pad18.Type = "UpToFirst"
pad18.Reversed = True

# Sketch on XZ plane
sketch21 = body.newObject("Sketcher::SketchObject", "Sketch020")
sketch21.AttachmentSupport = (doc.getObject("XZ_Plane"), [""])
sketch21.MapMode = "FlatFace"
sketch21.addGeometry(Part.Circle(Vector(16.56, -1.24, 0), Vector(0, 0, 1), 0.23), False)
sketch21.addConstraint([
    Sketcher.Constraint("Diameter", 0, Q("0.45 mm")),
    Sketcher.Constraint("DistanceX", -1, 1, 0, 3, Q("16.56 mm")),
    Sketcher.Constraint("DistanceY", 0, 3, -1, 1, Q("1.24 mm")),
])
pad19 = body.newObject("PartDesign::Pad", "Pad018")
pad19.Profile = sketch21
pad19.Type = "UpToFirst"
pad19.Reversed = True

# Sketch on XZ plane
sketch22 = body.newObject("Sketcher::SketchObject", "Sketch021")
sketch22.AttachmentSupport = (doc.getObject("XZ_Plane"), [""])
sketch22.MapMode = "FlatFace"
sketch22.addGeometry(Part.Circle(Vector(19.1, -1.24, 0), Vector(0, 0, 1), 0.23), False)
sketch22.addConstraint([
    Sketcher.Constraint("Diameter", 0, Q("0.45 mm")),
    Sketcher.Constraint("DistanceX", -1, 1, 0, 3, Q("19.1 mm")),
    Sketcher.Constraint("DistanceY", 0, 3, -1, 1, Q("1.24 mm")),
])
pad20 = body.newObject("PartDesign::Pad", "Pad019")
pad20.Profile = sketch22
pad20.Type = "UpToFirst"
pad20.Reversed = True

# Sketch on XZ plane
sketch23 = body.newObject("Sketcher::SketchObject", "Sketch022")
sketch23.AttachmentSupport = (doc.getObject("XZ_Plane"), [""])
sketch23.MapMode = "FlatFace"
sketch23.addGeometry(Part.Circle(Vector(21.64, -1.24, 0), Vector(0, 0, 1), 0.23), False)
sketch23.addConstraint([
    Sketcher.Constraint("Diameter", 0, Q("0.45 mm")),
    Sketcher.Constraint("DistanceX", -1, 1, 0, 3, Q("21.64 mm")),
    Sketcher.Constraint("DistanceY", 0, 3, -1, 1, Q("1.24 mm")),
])
pad21 = body.newObject("PartDesign::Pad", "Pad020")
pad21.Profile = sketch23
pad21.Type = "UpToFirst"
pad21.Reversed = True

# Sketch on XZ plane
sketch24 = body.newObject("Sketcher::SketchObject", "Sketch023")
sketch24.AttachmentSupport = (doc.getObject("XZ_Plane"), [""])
sketch24.MapMode = "FlatFace"
sketch24.addGeometry(Part.Circle(Vector(24.18, -1.24, 0), Vector(0, 0, 1), 0.23), False)
sketch24.addConstraint([
    Sketcher.Constraint("Diameter", 0, Q("0.45 mm")),
    Sketcher.Constraint("DistanceX", -1, 1, 0, 3, Q("24.18 mm")),
    Sketcher.Constraint("DistanceY", 0, 3, -1, 1, Q("1.24 mm")),
])
pad22 = body.newObject("PartDesign::Pad", "Pad021")
pad22.Profile = sketch24
pad22.Type = "UpToFirst"
pad22.Reversed = True

# Sketch on XZ plane
sketch25 = body.newObject("Sketcher::SketchObject", "Sketch024")
sketch25.AttachmentSupport = (doc.getObject("XZ_Plane"), [""])
sketch25.MapMode = "FlatFace"
sketch25.addGeometry(Part.Circle(Vector(1.32, -1.24, 0), Vector(0, 0, 1), 0.23), False)
sketch25.addConstraint([
    Sketcher.Constraint("Diameter", 0, Q("0.45 mm")),
    Sketcher.Constraint("DistanceX", -1, 1, 0, 3, Q("1.32 mm")),
    Sketcher.Constraint("DistanceY", 0, 3, -1, 1, Q("1.24 mm")),
])
pad23 = body.newObject("PartDesign::Pad", "Pad022")
pad23.Profile = sketch25
pad23.Type = "UpToFirst"
pad23.Reversed = True

doc.recompute()
